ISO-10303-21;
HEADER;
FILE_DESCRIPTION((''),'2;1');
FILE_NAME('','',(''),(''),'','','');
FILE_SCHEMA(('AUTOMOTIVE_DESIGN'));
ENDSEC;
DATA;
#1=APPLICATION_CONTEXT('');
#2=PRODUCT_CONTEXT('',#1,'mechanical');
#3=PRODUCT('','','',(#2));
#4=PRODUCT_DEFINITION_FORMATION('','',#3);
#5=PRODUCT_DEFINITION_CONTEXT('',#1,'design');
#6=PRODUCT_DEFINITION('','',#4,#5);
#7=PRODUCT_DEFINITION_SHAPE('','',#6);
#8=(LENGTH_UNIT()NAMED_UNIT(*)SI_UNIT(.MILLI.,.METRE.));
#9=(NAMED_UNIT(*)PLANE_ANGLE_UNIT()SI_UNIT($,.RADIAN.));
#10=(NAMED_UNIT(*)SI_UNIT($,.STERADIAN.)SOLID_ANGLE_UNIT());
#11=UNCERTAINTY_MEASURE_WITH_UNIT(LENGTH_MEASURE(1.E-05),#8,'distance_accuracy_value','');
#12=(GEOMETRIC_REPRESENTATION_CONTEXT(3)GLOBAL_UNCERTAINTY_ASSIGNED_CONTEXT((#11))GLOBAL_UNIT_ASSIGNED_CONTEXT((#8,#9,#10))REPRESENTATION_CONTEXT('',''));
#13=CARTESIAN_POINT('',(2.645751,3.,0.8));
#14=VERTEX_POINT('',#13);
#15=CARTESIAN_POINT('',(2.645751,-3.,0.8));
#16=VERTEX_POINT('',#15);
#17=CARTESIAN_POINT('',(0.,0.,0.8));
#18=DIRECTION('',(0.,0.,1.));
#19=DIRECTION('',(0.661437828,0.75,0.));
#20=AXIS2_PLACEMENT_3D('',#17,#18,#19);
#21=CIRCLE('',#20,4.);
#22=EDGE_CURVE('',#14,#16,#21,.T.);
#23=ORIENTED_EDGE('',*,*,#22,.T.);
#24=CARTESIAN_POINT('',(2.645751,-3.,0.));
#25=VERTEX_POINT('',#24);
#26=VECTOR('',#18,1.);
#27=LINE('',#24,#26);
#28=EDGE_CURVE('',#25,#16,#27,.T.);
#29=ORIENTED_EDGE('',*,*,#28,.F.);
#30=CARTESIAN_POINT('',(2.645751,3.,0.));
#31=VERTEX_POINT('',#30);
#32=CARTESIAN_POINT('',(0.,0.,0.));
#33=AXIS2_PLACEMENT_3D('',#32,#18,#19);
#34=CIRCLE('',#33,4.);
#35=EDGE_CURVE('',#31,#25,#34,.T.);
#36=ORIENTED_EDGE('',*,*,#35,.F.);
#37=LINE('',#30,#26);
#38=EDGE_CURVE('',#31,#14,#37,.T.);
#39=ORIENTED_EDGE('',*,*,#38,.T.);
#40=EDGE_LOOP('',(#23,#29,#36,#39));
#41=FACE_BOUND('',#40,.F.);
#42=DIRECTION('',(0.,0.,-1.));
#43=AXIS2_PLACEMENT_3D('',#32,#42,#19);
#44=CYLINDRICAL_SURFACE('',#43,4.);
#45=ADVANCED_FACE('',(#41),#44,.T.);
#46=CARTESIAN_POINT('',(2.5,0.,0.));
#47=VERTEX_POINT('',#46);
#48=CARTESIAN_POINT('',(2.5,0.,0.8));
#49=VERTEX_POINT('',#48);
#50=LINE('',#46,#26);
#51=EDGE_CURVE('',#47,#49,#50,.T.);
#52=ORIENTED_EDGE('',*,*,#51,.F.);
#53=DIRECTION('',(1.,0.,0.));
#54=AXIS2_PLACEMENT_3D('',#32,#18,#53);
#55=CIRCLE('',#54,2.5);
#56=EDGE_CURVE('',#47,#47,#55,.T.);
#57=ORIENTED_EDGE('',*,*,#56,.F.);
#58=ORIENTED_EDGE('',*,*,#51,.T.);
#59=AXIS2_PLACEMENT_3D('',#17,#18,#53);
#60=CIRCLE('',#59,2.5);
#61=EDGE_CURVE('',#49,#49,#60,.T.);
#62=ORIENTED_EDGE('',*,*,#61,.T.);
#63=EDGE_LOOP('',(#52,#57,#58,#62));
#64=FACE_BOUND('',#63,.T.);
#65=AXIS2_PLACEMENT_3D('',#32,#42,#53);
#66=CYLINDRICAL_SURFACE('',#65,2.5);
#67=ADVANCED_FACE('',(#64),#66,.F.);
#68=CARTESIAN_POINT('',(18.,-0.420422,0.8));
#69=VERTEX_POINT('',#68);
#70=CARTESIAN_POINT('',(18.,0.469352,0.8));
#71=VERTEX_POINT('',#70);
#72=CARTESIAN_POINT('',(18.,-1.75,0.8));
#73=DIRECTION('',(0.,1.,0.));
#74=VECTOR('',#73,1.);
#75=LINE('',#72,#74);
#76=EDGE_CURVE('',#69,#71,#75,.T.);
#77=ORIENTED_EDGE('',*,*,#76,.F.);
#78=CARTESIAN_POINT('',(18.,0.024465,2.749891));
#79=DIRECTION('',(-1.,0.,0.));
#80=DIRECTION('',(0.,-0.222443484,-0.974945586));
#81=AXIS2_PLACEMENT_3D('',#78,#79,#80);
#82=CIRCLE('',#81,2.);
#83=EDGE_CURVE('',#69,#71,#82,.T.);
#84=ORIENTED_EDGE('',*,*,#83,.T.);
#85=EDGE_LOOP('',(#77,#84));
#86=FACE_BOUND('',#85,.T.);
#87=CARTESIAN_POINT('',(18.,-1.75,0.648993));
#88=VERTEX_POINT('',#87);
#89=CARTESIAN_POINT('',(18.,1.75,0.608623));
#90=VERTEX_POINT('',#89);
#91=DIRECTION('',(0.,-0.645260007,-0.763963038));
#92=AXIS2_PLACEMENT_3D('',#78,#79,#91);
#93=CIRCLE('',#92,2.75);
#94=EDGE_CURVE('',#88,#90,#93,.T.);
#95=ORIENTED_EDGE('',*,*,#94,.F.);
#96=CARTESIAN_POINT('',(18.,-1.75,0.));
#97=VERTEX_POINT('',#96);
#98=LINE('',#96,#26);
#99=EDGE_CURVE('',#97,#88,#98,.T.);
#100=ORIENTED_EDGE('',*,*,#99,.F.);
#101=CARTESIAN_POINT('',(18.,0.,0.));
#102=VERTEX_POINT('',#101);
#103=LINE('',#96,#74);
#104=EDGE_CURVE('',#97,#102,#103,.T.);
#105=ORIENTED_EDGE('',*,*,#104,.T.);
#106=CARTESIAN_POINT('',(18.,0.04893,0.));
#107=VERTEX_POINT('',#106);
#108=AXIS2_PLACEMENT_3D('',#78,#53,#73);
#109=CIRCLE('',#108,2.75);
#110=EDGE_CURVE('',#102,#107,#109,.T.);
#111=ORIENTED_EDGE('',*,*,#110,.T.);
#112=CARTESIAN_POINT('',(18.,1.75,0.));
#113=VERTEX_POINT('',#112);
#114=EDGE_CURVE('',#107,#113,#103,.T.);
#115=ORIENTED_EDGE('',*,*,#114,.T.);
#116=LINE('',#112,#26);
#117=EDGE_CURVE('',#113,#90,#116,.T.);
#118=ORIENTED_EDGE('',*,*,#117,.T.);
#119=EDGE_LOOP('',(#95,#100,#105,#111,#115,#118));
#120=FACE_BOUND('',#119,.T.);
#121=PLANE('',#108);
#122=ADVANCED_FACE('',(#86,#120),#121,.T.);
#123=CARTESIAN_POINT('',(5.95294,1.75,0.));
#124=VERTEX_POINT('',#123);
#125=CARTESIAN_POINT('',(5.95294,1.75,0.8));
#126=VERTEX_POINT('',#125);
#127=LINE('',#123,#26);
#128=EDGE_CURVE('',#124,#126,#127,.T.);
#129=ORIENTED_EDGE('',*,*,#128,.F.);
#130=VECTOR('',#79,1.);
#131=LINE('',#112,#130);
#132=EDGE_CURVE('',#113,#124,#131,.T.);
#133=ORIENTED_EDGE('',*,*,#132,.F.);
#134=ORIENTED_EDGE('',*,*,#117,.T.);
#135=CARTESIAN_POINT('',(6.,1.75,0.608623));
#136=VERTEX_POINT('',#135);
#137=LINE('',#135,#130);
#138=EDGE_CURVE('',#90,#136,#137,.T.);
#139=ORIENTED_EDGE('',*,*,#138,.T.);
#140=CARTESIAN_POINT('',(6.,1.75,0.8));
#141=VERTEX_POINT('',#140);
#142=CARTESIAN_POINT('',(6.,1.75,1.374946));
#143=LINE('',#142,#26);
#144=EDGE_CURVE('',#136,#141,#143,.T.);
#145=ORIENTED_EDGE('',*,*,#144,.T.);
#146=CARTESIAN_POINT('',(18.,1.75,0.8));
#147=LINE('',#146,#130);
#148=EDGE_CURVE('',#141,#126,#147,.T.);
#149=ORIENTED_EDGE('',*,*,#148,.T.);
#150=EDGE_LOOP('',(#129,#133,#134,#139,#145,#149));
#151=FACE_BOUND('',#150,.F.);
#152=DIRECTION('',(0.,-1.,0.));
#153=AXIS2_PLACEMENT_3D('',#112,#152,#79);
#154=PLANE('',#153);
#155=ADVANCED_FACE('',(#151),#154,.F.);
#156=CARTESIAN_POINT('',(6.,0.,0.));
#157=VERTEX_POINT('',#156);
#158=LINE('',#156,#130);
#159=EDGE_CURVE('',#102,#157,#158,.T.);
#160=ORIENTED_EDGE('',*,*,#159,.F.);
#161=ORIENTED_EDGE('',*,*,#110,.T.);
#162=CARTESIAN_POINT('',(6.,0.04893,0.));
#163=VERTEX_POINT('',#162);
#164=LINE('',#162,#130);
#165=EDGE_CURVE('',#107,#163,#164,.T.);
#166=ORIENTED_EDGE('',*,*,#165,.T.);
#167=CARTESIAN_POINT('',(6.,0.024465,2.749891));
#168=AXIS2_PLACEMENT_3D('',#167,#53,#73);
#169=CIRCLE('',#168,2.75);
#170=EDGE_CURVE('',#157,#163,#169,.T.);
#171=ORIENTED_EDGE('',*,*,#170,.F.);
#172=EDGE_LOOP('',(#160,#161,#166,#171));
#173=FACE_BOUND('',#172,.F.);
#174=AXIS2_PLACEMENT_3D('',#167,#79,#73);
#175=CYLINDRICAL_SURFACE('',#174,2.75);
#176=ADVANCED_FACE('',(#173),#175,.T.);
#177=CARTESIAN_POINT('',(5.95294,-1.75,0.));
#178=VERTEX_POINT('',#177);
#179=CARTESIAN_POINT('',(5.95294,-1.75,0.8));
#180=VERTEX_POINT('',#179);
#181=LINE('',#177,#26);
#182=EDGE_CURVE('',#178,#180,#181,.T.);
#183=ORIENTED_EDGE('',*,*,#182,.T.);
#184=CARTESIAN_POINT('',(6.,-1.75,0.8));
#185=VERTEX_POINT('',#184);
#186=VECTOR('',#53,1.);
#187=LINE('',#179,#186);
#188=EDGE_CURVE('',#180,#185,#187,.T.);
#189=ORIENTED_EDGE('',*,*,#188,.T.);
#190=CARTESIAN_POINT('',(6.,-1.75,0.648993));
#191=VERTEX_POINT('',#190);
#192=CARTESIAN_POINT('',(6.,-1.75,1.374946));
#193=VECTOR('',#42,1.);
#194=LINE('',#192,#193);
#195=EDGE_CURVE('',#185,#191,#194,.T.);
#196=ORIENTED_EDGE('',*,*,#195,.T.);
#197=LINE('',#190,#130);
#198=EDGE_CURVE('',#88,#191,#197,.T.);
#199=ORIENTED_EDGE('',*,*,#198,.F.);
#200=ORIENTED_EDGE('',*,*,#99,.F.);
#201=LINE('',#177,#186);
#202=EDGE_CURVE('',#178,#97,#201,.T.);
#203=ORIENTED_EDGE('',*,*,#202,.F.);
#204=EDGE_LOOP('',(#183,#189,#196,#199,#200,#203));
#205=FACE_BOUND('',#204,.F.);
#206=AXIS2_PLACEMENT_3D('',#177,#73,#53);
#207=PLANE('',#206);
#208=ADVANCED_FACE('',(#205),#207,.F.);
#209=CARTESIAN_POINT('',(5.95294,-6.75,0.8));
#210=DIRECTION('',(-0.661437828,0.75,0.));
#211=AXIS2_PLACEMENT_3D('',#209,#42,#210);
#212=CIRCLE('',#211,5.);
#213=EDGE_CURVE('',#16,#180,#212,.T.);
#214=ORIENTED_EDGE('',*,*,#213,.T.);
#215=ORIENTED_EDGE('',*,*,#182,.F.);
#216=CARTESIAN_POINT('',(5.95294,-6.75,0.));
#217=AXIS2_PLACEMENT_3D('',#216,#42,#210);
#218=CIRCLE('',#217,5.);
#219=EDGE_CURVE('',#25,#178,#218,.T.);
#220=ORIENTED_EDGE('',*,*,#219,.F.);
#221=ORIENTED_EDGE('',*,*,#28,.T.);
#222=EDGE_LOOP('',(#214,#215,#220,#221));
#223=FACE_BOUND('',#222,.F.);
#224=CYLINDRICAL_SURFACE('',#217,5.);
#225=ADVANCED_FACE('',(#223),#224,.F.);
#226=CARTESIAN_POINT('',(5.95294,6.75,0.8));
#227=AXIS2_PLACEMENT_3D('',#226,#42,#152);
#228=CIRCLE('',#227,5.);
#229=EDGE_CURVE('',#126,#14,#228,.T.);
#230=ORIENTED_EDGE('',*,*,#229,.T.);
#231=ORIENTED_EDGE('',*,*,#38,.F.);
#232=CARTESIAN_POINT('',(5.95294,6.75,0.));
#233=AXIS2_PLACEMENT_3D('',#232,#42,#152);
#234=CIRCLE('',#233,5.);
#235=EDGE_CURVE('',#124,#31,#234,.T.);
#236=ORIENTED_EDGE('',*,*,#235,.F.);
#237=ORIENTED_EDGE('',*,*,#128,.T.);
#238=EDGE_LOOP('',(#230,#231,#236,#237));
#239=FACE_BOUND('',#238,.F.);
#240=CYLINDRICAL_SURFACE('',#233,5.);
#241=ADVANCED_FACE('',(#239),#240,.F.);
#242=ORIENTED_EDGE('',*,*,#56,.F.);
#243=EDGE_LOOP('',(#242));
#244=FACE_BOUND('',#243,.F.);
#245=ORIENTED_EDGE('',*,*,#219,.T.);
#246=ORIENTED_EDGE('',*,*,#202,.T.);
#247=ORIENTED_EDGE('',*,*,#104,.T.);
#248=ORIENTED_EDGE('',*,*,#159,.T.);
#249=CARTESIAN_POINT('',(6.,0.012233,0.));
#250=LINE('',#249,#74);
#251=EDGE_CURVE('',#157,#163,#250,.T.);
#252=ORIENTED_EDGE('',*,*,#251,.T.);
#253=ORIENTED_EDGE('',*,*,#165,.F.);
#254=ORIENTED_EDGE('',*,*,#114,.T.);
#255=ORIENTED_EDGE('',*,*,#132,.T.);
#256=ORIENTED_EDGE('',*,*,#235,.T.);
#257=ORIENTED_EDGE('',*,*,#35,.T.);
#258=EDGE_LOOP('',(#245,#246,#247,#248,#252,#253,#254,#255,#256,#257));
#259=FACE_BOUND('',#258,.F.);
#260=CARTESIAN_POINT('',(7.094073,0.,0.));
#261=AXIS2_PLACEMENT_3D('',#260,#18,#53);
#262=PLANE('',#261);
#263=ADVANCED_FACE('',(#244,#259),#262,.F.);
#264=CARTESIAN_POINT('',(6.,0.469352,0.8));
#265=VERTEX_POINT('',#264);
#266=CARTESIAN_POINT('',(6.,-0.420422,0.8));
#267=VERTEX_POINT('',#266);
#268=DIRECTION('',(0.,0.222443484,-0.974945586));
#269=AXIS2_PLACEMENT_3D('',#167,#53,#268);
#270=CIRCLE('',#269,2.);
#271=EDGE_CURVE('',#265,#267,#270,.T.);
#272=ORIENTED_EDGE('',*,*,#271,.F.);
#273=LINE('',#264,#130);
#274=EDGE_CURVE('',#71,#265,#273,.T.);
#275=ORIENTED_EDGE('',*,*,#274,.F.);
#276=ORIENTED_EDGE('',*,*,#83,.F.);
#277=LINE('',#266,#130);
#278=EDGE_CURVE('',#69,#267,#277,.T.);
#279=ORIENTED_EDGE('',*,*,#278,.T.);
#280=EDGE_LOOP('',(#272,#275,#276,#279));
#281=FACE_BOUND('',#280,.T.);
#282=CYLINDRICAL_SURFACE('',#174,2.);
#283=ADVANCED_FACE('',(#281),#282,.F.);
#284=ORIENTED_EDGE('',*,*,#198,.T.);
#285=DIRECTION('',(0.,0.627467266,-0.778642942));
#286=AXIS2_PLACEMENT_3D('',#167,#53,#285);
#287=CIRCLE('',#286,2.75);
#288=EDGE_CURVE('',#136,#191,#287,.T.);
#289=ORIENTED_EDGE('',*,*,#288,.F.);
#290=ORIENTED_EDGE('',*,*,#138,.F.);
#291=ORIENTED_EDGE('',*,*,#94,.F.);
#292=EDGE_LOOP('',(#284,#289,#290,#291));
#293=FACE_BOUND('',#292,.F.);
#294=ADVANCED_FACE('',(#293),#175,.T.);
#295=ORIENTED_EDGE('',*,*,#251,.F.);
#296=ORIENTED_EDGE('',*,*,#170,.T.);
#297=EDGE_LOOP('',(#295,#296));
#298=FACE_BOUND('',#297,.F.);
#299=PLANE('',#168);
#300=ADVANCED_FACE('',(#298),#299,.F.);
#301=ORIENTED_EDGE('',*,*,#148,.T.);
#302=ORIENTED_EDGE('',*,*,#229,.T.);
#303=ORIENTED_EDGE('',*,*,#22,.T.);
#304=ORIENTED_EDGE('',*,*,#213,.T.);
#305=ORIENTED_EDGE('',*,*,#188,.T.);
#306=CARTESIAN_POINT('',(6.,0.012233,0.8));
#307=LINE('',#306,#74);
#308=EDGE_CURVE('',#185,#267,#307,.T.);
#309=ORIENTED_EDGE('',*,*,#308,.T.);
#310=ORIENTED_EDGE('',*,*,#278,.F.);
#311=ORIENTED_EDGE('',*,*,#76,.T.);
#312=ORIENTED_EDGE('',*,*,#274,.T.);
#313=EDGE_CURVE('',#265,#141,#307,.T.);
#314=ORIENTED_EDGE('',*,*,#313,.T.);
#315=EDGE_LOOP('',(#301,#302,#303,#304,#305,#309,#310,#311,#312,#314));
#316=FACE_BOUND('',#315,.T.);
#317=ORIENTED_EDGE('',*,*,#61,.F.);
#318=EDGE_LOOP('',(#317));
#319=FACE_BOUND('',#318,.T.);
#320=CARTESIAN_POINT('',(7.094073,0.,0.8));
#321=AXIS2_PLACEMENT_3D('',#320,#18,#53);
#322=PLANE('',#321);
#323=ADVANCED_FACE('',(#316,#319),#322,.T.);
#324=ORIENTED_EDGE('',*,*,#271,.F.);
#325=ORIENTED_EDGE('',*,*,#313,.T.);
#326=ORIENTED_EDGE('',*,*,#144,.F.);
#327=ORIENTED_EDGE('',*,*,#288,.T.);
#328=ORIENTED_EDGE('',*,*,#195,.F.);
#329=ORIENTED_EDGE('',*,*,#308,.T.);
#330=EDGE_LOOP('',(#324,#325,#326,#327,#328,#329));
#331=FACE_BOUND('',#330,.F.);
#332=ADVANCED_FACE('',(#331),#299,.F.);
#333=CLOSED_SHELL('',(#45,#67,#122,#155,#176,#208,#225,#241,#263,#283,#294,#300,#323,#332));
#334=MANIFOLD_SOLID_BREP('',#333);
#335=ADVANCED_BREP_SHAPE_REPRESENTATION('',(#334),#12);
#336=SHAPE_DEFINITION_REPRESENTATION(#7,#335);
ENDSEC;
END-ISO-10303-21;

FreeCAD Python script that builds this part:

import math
import FreeCAD as App
import Part
import Sketcher
from FreeCAD import Vector

doc = App.newDocument("Part")
body = doc.addObject("PartDesign::Body", "Body")

sketch1 = body.newObject("Sketcher::SketchObject", "Sketch")
sketch1.AttachmentSupport = (doc.getObject("XY_Plane"), [""])
sketch1.MapMode = "FlatFace"
sketch1.addGeometry([
    Part.ArcOfCircle(Part.Circle(Vector(6, 6.7, 0), Vector(0, 0, 1), 5), math.radians(-131), math.radians(-90)),
    Part.ArcOfCircle(Part.Circle(Vector(0, 0, 0), Vector(0, 0, 1), 4), math.radians(49), math.radians(311)),
    Part.ArcOfCircle(Part.Circle(Vector(6, -6.7, 0), Vector(0, 0, 1), 5), math.radians(90), math.radians(131)),
    Part.LineSegment(Vector(6, -1.8, 0), Vector(18, -1.8, 0)),
    Part.LineSegment(Vector(18, -1.8, 0), Vector(18, 1.8, 0)),
    Part.LineSegment(Vector(18, 1.8, 0), Vector(6, 1.8, 0)),
    Part.Circle(Vector(0, 0, 0), Vector(0, 0, 1), 2.5),
], False)
sketch1.addConstraint([
    Sketcher.Constraint("Tangent", 0, 1, 1, 1),
    Sketcher.Constraint("Tangent", 1, 2, 2, 2),
    Sketcher.Constraint("Tangent", 2, 1, 3, 1),
    Sketcher.Constraint("Coincident", 3, 2, 4, 1),
    Sketcher.Constraint("Coincident", 4, 2, 5, 1),
    Sketcher.Constraint("Tangent", 5, 2, 0, 2),
    Sketcher.Constraint("Horizontal", 3),
    Sketcher.Constraint("Vertical", 4),
    Sketcher.Constraint("Horizontal", 5),
    Sketcher.Constraint("Coincident", 1, 3, -1, 1),
    Sketcher.Constraint("Coincident", 6, 3, -1, 1),
    Sketcher.Constraint("Equal", 0, 2),
    Sketcher.Constraint("Vertical", 0, 3, 2, 3),
    Sketcher.Constraint("Diameter", 6, 5.0),
    Sketcher.Constraint("Radius", 0, 5.0),
    Sketcher.Constraint("Radius", 1, 4.0),
    Sketcher.Constraint("DistanceY", 4, 1, 4, 2, 3.5),
    Sketcher.Constraint("DistanceX", -1, 1, 3, 2, 18.0),
])
pad1 = body.newObject("PartDesign::Pad", "Pad")
pad1.Profile = sketch1
pad1.Length = 0.8

sketch2 = body.newObject("Sketcher::SketchObject", "Sketch001")
sketch2.AttachmentSupport = (doc.getObject("YZ_Plane"), [""])
sketch2.MapMode = "FlatFace"
sketch2.AttachmentOffset = App.Placement(Vector(0, 0, 6), App.Rotation())
sketch2.addGeometry([
    Part.Circle(Vector(0, 2.7, 0), Vector(0, 0, 1), 2.8),
    Part.Circle(Vector(0, 2.7, 0), Vector(0, 0, 1), 2),
], False)
sketch2.addConstraint([
    Sketcher.Constraint("Coincident", 1, 3, 0, 3),
    Sketcher.Constraint("Diameter", 1, 4.0),
    Sketcher.Constraint("Diameter", 0, 5.5),
    Sketcher.Constraint("DistanceY", -1, 1, 0, 3, 2.749891),
    Sketcher.Constraint("DistanceX", -1, 1, 0, 3, 0.024465),
])
pad2 = body.newObject("PartDesign::Pad", "Pad001")
pad2.Profile = sketch2
pad2.Length = 12

doc.recompute()
